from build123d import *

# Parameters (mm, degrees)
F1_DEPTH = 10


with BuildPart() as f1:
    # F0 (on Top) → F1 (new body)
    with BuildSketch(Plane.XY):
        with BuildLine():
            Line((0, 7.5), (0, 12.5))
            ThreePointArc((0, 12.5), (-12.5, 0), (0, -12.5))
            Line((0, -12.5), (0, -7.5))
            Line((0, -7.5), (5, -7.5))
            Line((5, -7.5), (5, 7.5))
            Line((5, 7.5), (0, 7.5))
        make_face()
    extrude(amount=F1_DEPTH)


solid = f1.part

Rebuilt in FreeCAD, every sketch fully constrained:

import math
import FreeCAD as App
import Part
import Sketcher
Q = App.Units.Quantity

doc = App.newDocument("Part")
body = doc.addObject("PartDesign::Body", "Body")

sketch1 = doc.addObject("Sketcher::SketchObject", "Sketch")
body.addObject(sketch1)
sketch1.AttachmentSupport = (doc.XY_Plane, [""])
sketch1.MapMode = "FlatFace"
sketch1.addGeometry([
    Part.LineSegment(App.Vector(0, 8, 0), App.Vector(0, 12, 0)),
    Part.ArcOfCircle(Part.Circle(App.Vector(0, 0, 0), App.Vector(0, 0, 1), 12), math.radians(90), math.radians(270)),
    Part.LineSegment(App.Vector(0, -12, 0), App.Vector(0, -8, 0)),
    Part.LineSegment(App.Vector(0, -8, 0), App.Vector(5, -8, 0)),
    Part.LineSegment(App.Vector(5, -8, 0), App.Vector(5, 8, 0)),
    Part.LineSegment(App.Vector(5, 8, 0), App.Vector(0, 8, 0)),
], False)
sketch1.addConstraint([
    Sketcher.Constraint("Coincident", 0, 2, 1, 1),
    Sketcher.Constraint("Coincident", 1, 2, 2, 1),
    Sketcher.Constraint("Coincident", 2, 2, 3, 1),
    Sketcher.Constraint("Coincident", 3, 2, 4, 1),
    Sketcher.Constraint("Coincident", 4, 2, 5, 1),
    Sketcher.Constraint("Coincident", 5, 2, 0, 1),
    Sketcher.Constraint("Vertical", 0),
    Sketcher.Constraint("Vertical", 2),
    Sketcher.Constraint("Horizontal", 3),
    Sketcher.Constraint("Vertical", 4),
    Sketcher.Constraint("Horizontal", 5),
    Sketcher.Constraint("Coincident", 1, 3, -1, 1),
    Sketcher.Constraint("Symmetric", 2, 2, 5, 2, -1, 1),
    Sketcher.Constraint("PointOnObject", 0, 2, -2),
    Sketcher.Constraint("Equal", 5, 0),
    Sketcher.Constraint("Radius", 1, Q("12.5 mm")),
    Sketcher.Constraint("DistanceX", 3, 1, 3, 2, Q("5 mm")),
])
pad1 = doc.addObject("PartDesign::Pad", "Pad")
body.addObject(pad1)
pad1.Profile = sketch1
pad1.Length = 10

doc.recompute()
